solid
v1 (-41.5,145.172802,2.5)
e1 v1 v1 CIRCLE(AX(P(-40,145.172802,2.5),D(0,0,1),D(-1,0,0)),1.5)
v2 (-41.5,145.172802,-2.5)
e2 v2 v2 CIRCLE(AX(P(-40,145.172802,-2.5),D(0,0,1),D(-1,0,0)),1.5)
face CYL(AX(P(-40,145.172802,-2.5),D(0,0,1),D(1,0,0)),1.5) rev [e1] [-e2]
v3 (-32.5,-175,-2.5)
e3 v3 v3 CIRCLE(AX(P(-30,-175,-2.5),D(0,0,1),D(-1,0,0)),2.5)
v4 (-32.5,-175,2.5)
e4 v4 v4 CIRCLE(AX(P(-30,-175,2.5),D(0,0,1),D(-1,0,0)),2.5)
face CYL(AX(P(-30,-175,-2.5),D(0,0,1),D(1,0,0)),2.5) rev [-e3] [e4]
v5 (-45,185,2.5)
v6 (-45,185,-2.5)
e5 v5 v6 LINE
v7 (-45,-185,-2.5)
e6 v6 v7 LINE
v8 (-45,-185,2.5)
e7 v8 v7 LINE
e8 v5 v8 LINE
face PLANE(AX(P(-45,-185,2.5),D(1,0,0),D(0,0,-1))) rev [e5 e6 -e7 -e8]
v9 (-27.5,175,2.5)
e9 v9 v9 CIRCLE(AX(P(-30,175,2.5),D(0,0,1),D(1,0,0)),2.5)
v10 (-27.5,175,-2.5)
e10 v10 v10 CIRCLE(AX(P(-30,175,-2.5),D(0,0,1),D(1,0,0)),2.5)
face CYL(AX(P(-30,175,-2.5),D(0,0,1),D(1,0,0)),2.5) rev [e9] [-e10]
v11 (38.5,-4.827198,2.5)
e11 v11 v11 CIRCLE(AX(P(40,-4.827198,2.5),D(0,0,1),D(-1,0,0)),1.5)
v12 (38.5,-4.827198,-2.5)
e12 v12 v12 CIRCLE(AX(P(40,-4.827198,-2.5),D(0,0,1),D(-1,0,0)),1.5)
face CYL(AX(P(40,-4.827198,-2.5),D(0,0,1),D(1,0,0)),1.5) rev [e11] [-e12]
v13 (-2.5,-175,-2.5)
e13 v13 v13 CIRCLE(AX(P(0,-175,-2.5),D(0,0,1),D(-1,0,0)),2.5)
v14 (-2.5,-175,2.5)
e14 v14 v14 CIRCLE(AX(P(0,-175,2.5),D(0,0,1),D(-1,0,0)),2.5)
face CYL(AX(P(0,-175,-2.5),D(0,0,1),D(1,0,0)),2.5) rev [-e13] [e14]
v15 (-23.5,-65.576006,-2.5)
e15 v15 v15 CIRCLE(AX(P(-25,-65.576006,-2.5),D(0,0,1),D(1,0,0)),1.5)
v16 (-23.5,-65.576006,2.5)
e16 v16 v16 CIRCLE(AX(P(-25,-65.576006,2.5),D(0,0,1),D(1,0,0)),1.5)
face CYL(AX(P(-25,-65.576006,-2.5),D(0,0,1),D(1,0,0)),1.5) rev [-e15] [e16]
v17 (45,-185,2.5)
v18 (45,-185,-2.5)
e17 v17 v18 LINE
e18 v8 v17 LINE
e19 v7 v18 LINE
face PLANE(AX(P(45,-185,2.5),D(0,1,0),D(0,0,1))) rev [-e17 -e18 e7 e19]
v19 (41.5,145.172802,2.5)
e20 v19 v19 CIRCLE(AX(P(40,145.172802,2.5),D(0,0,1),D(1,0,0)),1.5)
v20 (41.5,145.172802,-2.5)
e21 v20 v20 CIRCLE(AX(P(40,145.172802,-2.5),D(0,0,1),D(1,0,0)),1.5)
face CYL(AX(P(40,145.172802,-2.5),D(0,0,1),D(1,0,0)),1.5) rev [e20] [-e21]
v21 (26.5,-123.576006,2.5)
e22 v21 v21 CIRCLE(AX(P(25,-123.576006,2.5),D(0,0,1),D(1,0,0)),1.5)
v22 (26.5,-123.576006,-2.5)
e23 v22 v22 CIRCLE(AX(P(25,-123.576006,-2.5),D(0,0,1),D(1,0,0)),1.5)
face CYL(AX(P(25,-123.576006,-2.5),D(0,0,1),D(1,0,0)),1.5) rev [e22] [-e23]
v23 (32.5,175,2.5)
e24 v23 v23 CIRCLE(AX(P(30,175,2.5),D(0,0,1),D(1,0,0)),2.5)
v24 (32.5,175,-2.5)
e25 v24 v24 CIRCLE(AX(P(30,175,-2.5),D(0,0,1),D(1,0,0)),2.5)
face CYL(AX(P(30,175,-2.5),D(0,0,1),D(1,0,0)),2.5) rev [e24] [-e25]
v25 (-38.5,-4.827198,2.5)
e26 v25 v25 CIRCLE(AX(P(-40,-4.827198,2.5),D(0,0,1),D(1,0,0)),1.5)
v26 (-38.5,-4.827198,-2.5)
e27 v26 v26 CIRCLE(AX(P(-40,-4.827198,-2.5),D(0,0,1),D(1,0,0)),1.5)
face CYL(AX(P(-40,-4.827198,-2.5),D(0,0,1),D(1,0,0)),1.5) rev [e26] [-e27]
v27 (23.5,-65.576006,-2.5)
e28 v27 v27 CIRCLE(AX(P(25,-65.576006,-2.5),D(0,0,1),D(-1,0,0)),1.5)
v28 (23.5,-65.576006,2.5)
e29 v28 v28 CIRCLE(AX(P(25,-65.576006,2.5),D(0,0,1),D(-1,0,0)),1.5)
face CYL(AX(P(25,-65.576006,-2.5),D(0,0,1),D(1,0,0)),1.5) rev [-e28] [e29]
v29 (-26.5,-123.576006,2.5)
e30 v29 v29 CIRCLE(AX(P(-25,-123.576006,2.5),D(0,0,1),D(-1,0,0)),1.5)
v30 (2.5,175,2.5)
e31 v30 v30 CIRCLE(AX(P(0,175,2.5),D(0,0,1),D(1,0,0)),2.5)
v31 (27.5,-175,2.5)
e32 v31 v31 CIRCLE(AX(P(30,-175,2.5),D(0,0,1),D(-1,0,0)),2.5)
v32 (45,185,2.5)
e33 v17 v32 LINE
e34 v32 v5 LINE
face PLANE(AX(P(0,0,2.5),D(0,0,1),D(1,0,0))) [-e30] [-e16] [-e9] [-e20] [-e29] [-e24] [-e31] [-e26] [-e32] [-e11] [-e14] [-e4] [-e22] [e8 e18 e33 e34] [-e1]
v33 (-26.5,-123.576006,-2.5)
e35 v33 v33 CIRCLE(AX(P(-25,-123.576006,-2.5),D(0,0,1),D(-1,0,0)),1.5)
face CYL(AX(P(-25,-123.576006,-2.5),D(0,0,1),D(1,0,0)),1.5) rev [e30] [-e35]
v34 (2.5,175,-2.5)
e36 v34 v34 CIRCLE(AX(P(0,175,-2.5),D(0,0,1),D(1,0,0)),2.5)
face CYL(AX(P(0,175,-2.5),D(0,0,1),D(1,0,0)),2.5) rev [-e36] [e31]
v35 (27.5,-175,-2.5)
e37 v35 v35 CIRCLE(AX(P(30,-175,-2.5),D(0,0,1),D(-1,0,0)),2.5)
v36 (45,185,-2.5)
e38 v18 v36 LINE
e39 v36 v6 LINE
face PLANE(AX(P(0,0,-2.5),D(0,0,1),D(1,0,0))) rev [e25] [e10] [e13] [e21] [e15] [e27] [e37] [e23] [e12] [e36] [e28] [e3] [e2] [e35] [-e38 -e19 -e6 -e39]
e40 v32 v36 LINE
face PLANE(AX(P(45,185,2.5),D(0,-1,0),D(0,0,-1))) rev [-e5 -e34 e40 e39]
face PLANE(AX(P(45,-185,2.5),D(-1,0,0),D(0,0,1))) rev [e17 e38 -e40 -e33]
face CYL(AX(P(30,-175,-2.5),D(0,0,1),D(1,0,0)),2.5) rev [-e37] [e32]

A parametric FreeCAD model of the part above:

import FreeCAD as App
import Part
import Sketcher
Q = App.Units.Quantity

doc = App.newDocument("Part")
params = doc.addObject("Spreadsheet::Sheet", "Params")
for row, (alias, value) in enumerate([
    ("sketch1_width", "90 mm"),
    ("sketch1_height", "370 mm"),
    ("pad1_length", "5 mm"),
    ("sketch2_diameter", "5 mm"),
    ("sketch3_diameter", "3 mm"),
    ("sketch4_diameter", "3 mm"),
], start=1):
    params.set(f"A{row}", alias)
    params.set(f"B{row}", "=" + value)
    params.setAlias(f"B{row}", alias)

body = doc.addObject("PartDesign::Body", "Body")

# Sketch on XY plane
sketch1 = body.newObject("Sketcher::SketchObject", "Sketch")
sketch1.AttachmentSupport = (doc.getObject("XY_Plane"), [""])
sketch1.MapMode = "FlatFace"
sketch1.addGeometry([
    Part.LineSegment(App.Vector(-45, 185, 0), App.Vector(-45, -185, 0)),
    Part.LineSegment(App.Vector(-45, -185, 0), App.Vector(45, -185, 0)),
    Part.LineSegment(App.Vector(45, -185, 0), App.Vector(45, 185, 0)),
    Part.LineSegment(App.Vector(45, 185, 0), App.Vector(-45, 185, 0)),
], False)
sketch1.addConstraint([
    Sketcher.Constraint("Coincident", 0, 2, 1, 1),
    Sketcher.Constraint("Coincident", 1, 2, 2, 1),
    Sketcher.Constraint("Coincident", 2, 2, 3, 1),
    Sketcher.Constraint("Coincident", 3, 2, 0, 1),
    Sketcher.Constraint("Vertical", 0),
    Sketcher.Constraint("Horizontal", 1),
    Sketcher.Constraint("Vertical", 2),
    Sketcher.Constraint("Horizontal", 3),
    Sketcher.Constraint("Symmetric", 0, 2, 2, 2, -1, 1),
    Sketcher.Constraint("DistanceX", 1, 1, 1, 2, Q("90 mm")),
    Sketcher.Constraint("DistanceY", 0, 2, 0, 1, Q("370 mm")),
])
sketch1.setExpression("Constraints[9]", "Params.sketch1_width")
sketch1.setExpression("Constraints[10]", "Params.sketch1_height")
pad1 = body.newObject("PartDesign::Pad", "Pad")
pad1.Profile = sketch1
pad1.setExpression("Length", "Params.pad1_length")
pad1.Midplane = True

# Sketch on XY plane
sketch2 = body.newObject("Sketcher::SketchObject", "Sketch001")
sketch2.AttachmentSupport = (doc.getObject("XY_Plane"), [""])
sketch2.MapMode = "FlatFace"
sketch2.AttachmentOffset = App.Placement(App.Vector(0, 0, 2.5), App.Rotation())
sketch2.addGeometry([
    Part.Circle(App.Vector(0, 175, 0), App.Vector(0, 0, 1), 2.5),  # 0
    Part.Circle(App.Vector(30, 175, 0), App.Vector(0, 0, 1), 2.5),  # 1
    Part.Circle(App.Vector(-30, 175, 0), App.Vector(0, 0, 1), 2.5),  # 2
    Part.Circle(App.Vector(-30, -175, 0), App.Vector(0, 0, 1), 2.5),  # 3
    Part.Circle(App.Vector(30, -175, 0), App.Vector(0, 0, 1), 2.5),  # 4
    Part.Circle(App.Vector(0, -175, 0), App.Vector(0, 0, 1), 2.5),  # 5
], False)
sketch2.addConstraint([
    Sketcher.Constraint("Equal", 0, 1),
    Sketcher.Constraint("Equal", 1, 2),
    Sketcher.Constraint("Equal", 2, 3),
    Sketcher.Constraint("Equal", 3, 4),
    Sketcher.Constraint("Equal", 4, 5),
    Sketcher.Constraint("Symmetric", 1, 3, 3, 3, -1, 1),
    Sketcher.Constraint("Symmetric", 2, 3, 4, 3, -1, 1),
    Sketcher.Constraint("Symmetric", 0, 3, 5, 3, -1, 1),
    Sketcher.Constraint("Symmetric", 1, 3, 2, 3, -2),
    Sketcher.Constraint("PointOnObject", 0, 3, -2),
    Sketcher.Constraint("Horizontal", 0, 3, 1, 3),
    Sketcher.Constraint("Diameter", 0, Q("5 mm")),
    Sketcher.Constraint("DistanceY", -1, 1, 0, 3, Q("175 mm")),
    Sketcher.Constraint("DistanceX", -1, 1, 1, 3, Q("30 mm")),
])
sketch2.setExpression("Constraints[11]", "Params.sketch2_diameter")
pocket1 = body.newObject("PartDesign::Pocket", "Pocket")
pocket1.Profile = sketch2
pocket1.Type = "ThroughAll"

# Sketch on XY plane
sketch3 = body.newObject("Sketcher::SketchObject", "Sketch002")
sketch3.AttachmentSupport = (doc.getObject("XY_Plane"), [""])
sketch3.MapMode = "FlatFace"
sketch3.AttachmentOffset = App.Placement(App.Vector(0, 0, 2.5), App.Rotation())
sketch3.addGeometry([
    Part.Circle(App.Vector(40, 145.172802, 0), App.Vector(0, 0, 1), 1.5),
    Part.Circle(App.Vector(-40, 145.172802, 0), App.Vector(0, 0, 1), 1.5),
    Part.Circle(App.Vector(-40, -4.827198, 0), App.Vector(0, 0, 1), 1.5),
    Part.Circle(App.Vector(40, -4.827198, 0), App.Vector(0, 0, 1), 1.5),
], False)
sketch3.addConstraint([
    Sketcher.Constraint("Equal", 0, 1),
    Sketcher.Constraint("Equal", 1, 2),
    Sketcher.Constraint("Equal", 2, 3),
    Sketcher.Constraint("Symmetric", 0, 3, 1, 3, -2),
    Sketcher.Constraint("Symmetric", 2, 3, 3, 3, -2),
    Sketcher.Constraint("Vertical", 1, 3, 2, 3),
    Sketcher.Constraint("Diameter", 0, Q("3 mm")),
    Sketcher.Constraint("DistanceX", -1, 1, 0, 3, Q("40 mm")),
    Sketcher.Constraint("DistanceY", 2, 3, 1, 3, Q("150 mm")),
    Sketcher.Constraint("DistanceY", -1, 1, 0, 3, Q("145.172802 mm")),
])
sketch3.setExpression("Constraints[6]", "Params.sketch3_diameter")
pocket2 = body.newObject("PartDesign::Pocket", "Pocket001")
pocket2.Profile = sketch3
pocket2.Type = "ThroughAll"

# Sketch on XY plane
sketch4 = body.newObject("Sketcher::SketchObject", "Sketch003")
sketch4.AttachmentSupport = (doc.getObject("XY_Plane"), [""])
sketch4.MapMode = "FlatFace"
sketch4.AttachmentOffset = App.Placement(App.Vector(0, 0, 2.5), App.Rotation())
sketch4.addGeometry([
    Part.Circle(App.Vector(25, -123.576006, 0), App.Vector(0, 0, 1), 1.5),
    Part.Circle(App.Vector(-25, -123.576006, 0), App.Vector(0, 0, 1), 1.5),
    Part.Circle(App.Vector(25, -65.576006, 0), App.Vector(0, 0, 1), 1.5),
    Part.Circle(App.Vector(-25, -65.576006, 0), App.Vector(0, 0, 1), 1.5),
], False)
sketch4.addConstraint([
    Sketcher.Constraint("Equal", 0, 1),
    Sketcher.Constraint("Equal", 1, 2),
    Sketcher.Constraint("Equal", 2, 3),
    Sketcher.Constraint("Symmetric", 0, 3, 1, 3, -2),
    Sketcher.Constraint("Symmetric", 2, 3, 3, 3, -2),
    Sketcher.Constraint("Vertical", 0, 3, 2, 3),
    Sketcher.Constraint("Diameter", 0, Q("3 mm")),
    Sketcher.Constraint("DistanceX", -1, 1, 0, 3, Q("25 mm")),
    Sketcher.Constraint("DistanceY", 0, 3, 2, 3, Q("58 mm")),
    Sketcher.Constraint("DistanceY", 0, 3, -1, 1, Q("123.576006 mm")),
])
sketch4.setExpression("Constraints[6]", "Params.sketch4_diameter")
pocket3 = body.newObject("PartDesign::Pocket", "Pocket002")
pocket3.Profile = sketch4
pocket3.Type = "ThroughAll"

doc.recompute()
